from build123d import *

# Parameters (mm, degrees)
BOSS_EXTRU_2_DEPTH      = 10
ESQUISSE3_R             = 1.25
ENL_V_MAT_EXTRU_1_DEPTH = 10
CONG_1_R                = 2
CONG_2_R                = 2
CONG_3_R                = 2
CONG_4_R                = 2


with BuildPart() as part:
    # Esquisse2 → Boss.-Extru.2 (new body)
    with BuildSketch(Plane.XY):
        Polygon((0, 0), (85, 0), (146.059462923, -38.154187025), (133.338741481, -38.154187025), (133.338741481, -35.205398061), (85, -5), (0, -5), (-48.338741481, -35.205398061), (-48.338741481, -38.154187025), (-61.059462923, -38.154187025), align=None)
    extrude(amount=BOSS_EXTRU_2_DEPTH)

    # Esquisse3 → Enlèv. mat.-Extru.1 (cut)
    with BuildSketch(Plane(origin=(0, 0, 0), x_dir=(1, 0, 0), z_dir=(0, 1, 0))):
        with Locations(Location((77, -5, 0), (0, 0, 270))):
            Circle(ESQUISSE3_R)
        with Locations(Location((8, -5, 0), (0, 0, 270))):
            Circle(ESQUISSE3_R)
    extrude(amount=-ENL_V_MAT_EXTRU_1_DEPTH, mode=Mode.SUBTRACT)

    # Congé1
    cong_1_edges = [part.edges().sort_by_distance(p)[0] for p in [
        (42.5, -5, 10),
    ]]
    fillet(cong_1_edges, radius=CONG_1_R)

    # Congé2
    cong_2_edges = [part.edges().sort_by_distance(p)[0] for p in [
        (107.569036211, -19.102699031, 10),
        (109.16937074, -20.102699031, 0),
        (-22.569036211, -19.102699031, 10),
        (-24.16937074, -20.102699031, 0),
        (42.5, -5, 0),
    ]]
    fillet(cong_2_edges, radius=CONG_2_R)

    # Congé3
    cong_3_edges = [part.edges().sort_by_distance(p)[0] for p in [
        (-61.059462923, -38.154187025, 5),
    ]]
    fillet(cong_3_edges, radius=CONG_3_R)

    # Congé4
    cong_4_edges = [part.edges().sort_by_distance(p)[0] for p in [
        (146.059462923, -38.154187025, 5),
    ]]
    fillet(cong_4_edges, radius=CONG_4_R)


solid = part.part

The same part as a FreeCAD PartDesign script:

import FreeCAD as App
import Part
import Sketcher
Q = App.Units.Quantity


def edges_at(feature, points):
    """Names of the edges that pass closest to the given points."""
    edges = feature.Shape.Edges
    near = lambda p: min(range(len(edges)), key=lambda i: edges[i].distToShape(Part.Vertex(*p))[0])
    return sorted({f"Edge{near(p) + 1}" for p in points})

doc = App.newDocument("Part")
body = doc.addObject("PartDesign::Body", "Body")

sketch1 = body.newObject("Sketcher::SketchObject", "Sketch")
sketch1.AttachmentSupport = (doc.getObject("XY_Plane"), [""])
sketch1.MapMode = "FlatFace"
sketch1.addGeometry([
    Part.LineSegment(App.Vector(85, 0, 0), App.Vector(0, 0, 0)),
    Part.LineSegment(App.Vector(0, 0, 0), App.Vector(-61.1, -38.2, 0)),
    Part.LineSegment(App.Vector(-61.1, -38.2, 0), App.Vector(-48.3, -38.2, 0)),
    Part.LineSegment(App.Vector(-48.3, -38.2, 0), App.Vector(-48.3, -35.2, 0)),
    Part.LineSegment(App.Vector(-48.3, -35.2, 0), App.Vector(0, -5, 0)),
    Part.LineSegment(App.Vector(0, -5, 0), App.Vector(85, -5, 0)),
    Part.LineSegment(App.Vector(85, -5, 0), App.Vector(133.3, -35.2, 0)),
    Part.LineSegment(App.Vector(133.3, -35.2, 0), App.Vector(133.3, -38.2, 0)),
    Part.LineSegment(App.Vector(133.3, -38.2, 0), App.Vector(146.1, -38.2, 0)),
    Part.LineSegment(App.Vector(146.1, -38.2, 0), App.Vector(85, 0, 0)),
], False)
sketch1.addConstraint([
    Sketcher.Constraint("Coincident", 0, 2, 1, 1),
    Sketcher.Constraint("Coincident", 1, 2, 2, 1),
    Sketcher.Constraint("Coincident", 2, 2, 3, 1),
    Sketcher.Constraint("Coincident", 3, 2, 4, 1),
    Sketcher.Constraint("Coincident", 4, 2, 5, 1),
    Sketcher.Constraint("Coincident", 5, 2, 6, 1),
    Sketcher.Constraint("Coincident", 6, 2, 7, 1),
    Sketcher.Constraint("Coincident", 7, 2, 8, 1),
    Sketcher.Constraint("Coincident", 8, 2, 9, 1),
    Sketcher.Constraint("Coincident", 9, 2, 0, 1),
    Sketcher.Constraint("Horizontal", 0),
    Sketcher.Constraint("Horizontal", 2),
    Sketcher.Constraint("Vertical", 3),
    Sketcher.Constraint("Horizontal", 5),
    Sketcher.Constraint("Vertical", 7),
    Sketcher.Constraint("Horizontal", 8),
    Sketcher.Constraint("Coincident", 0, 2, -1, 1),
    Sketcher.Constraint("PointOnObject", 4, 2, -2),
    Sketcher.Constraint("Parallel", 1, 4),
    Sketcher.Constraint("Parallel", 6, 9),
    Sketcher.Constraint("Horizontal", 3, 2, 6, 2),
    Sketcher.Constraint("Horizontal", 2, 2, 7, 2),
    Sketcher.Constraint("Vertical", 5, 2, 9, 2),
    Sketcher.Constraint("Equal", 2, 8),
    Sketcher.Constraint("DistanceX", 0, 2, 0, 1, Q("85 mm")),
    Sketcher.Constraint("Angle", 1, Q("-148 deg")),
    Sketcher.Constraint("Distance", 1, Q("72 mm")),
    Sketcher.Constraint("Distance", 4, Q("57 mm")),
    Sketcher.Constraint("DistanceY", 4, 2, -1, 1, Q("5 mm")),
])
pad1 = body.newObject("PartDesign::Pad", "Pad")
pad1.Profile = sketch1
pad1.Length = 10

sketch2 = body.newObject("Sketcher::SketchObject", "Sketch001")
sketch2.AttachmentSupport = (doc.getObject("XZ_Plane"), [""])
sketch2.MapMode = "FlatFace"
sketch2.addGeometry([
    Part.Circle(App.Vector(77, 5, 0), App.Vector(0, 0, 1), 1.2),
    Part.Circle(App.Vector(8, 5, 0), App.Vector(0, 0, 1), 1.2),
], False)
sketch2.addConstraint([
    Sketcher.Constraint("Equal", 0, 1),
    Sketcher.Constraint("Horizontal", 0, 3, 1, 3),
    Sketcher.Constraint("Diameter", 0, Q("2.5 mm")),
    Sketcher.Constraint("DistanceX", -1, 1, 0, 3, Q("77 mm")),
    Sketcher.Constraint("DistanceY", -1, 1, 0, 3, Q("5 mm")),
    Sketcher.Constraint("DistanceX", -1, 1, 1, 3, Q("8 mm")),
])
pocket1 = body.newObject("PartDesign::Pocket", "Pocket")
pocket1.Profile = sketch2
pocket1.Length = 10
pocket1.Reversed = True
doc.recompute()

fillet = body.newObject("PartDesign::Fillet", "Fillet")
fillet.Base = (pocket1, edges_at(pocket1, [(42.5, -5, 10)]))
fillet.Radius = 2
doc.recompute()

fillet2 = body.newObject("PartDesign::Fillet", "Fillet001")
fillet2.Base = (fillet, edges_at(fillet, [
    (107.569, -19.103, 10),
    (109.169, -20.103, 0),
    (-22.569, -19.103, 10),
    (-24.169, -20.103, 0),
    (42.5, -5, 0),
]))
fillet2.Radius = 2
doc.recompute()

fillet3 = body.newObject("PartDesign::Fillet", "Fillet002")
fillet3.Base = (fillet2, edges_at(fillet2, [(-61.059, -38.154, 5)]))
fillet3.Radius = 2
doc.recompute()

fillet4 = body.newObject("PartDesign::Fillet", "Fillet003")
fillet4.Base = (fillet3, edges_at(fillet3, [(146.059, -38.154, 5)]))
fillet4.Radius = 2

doc.recompute()
